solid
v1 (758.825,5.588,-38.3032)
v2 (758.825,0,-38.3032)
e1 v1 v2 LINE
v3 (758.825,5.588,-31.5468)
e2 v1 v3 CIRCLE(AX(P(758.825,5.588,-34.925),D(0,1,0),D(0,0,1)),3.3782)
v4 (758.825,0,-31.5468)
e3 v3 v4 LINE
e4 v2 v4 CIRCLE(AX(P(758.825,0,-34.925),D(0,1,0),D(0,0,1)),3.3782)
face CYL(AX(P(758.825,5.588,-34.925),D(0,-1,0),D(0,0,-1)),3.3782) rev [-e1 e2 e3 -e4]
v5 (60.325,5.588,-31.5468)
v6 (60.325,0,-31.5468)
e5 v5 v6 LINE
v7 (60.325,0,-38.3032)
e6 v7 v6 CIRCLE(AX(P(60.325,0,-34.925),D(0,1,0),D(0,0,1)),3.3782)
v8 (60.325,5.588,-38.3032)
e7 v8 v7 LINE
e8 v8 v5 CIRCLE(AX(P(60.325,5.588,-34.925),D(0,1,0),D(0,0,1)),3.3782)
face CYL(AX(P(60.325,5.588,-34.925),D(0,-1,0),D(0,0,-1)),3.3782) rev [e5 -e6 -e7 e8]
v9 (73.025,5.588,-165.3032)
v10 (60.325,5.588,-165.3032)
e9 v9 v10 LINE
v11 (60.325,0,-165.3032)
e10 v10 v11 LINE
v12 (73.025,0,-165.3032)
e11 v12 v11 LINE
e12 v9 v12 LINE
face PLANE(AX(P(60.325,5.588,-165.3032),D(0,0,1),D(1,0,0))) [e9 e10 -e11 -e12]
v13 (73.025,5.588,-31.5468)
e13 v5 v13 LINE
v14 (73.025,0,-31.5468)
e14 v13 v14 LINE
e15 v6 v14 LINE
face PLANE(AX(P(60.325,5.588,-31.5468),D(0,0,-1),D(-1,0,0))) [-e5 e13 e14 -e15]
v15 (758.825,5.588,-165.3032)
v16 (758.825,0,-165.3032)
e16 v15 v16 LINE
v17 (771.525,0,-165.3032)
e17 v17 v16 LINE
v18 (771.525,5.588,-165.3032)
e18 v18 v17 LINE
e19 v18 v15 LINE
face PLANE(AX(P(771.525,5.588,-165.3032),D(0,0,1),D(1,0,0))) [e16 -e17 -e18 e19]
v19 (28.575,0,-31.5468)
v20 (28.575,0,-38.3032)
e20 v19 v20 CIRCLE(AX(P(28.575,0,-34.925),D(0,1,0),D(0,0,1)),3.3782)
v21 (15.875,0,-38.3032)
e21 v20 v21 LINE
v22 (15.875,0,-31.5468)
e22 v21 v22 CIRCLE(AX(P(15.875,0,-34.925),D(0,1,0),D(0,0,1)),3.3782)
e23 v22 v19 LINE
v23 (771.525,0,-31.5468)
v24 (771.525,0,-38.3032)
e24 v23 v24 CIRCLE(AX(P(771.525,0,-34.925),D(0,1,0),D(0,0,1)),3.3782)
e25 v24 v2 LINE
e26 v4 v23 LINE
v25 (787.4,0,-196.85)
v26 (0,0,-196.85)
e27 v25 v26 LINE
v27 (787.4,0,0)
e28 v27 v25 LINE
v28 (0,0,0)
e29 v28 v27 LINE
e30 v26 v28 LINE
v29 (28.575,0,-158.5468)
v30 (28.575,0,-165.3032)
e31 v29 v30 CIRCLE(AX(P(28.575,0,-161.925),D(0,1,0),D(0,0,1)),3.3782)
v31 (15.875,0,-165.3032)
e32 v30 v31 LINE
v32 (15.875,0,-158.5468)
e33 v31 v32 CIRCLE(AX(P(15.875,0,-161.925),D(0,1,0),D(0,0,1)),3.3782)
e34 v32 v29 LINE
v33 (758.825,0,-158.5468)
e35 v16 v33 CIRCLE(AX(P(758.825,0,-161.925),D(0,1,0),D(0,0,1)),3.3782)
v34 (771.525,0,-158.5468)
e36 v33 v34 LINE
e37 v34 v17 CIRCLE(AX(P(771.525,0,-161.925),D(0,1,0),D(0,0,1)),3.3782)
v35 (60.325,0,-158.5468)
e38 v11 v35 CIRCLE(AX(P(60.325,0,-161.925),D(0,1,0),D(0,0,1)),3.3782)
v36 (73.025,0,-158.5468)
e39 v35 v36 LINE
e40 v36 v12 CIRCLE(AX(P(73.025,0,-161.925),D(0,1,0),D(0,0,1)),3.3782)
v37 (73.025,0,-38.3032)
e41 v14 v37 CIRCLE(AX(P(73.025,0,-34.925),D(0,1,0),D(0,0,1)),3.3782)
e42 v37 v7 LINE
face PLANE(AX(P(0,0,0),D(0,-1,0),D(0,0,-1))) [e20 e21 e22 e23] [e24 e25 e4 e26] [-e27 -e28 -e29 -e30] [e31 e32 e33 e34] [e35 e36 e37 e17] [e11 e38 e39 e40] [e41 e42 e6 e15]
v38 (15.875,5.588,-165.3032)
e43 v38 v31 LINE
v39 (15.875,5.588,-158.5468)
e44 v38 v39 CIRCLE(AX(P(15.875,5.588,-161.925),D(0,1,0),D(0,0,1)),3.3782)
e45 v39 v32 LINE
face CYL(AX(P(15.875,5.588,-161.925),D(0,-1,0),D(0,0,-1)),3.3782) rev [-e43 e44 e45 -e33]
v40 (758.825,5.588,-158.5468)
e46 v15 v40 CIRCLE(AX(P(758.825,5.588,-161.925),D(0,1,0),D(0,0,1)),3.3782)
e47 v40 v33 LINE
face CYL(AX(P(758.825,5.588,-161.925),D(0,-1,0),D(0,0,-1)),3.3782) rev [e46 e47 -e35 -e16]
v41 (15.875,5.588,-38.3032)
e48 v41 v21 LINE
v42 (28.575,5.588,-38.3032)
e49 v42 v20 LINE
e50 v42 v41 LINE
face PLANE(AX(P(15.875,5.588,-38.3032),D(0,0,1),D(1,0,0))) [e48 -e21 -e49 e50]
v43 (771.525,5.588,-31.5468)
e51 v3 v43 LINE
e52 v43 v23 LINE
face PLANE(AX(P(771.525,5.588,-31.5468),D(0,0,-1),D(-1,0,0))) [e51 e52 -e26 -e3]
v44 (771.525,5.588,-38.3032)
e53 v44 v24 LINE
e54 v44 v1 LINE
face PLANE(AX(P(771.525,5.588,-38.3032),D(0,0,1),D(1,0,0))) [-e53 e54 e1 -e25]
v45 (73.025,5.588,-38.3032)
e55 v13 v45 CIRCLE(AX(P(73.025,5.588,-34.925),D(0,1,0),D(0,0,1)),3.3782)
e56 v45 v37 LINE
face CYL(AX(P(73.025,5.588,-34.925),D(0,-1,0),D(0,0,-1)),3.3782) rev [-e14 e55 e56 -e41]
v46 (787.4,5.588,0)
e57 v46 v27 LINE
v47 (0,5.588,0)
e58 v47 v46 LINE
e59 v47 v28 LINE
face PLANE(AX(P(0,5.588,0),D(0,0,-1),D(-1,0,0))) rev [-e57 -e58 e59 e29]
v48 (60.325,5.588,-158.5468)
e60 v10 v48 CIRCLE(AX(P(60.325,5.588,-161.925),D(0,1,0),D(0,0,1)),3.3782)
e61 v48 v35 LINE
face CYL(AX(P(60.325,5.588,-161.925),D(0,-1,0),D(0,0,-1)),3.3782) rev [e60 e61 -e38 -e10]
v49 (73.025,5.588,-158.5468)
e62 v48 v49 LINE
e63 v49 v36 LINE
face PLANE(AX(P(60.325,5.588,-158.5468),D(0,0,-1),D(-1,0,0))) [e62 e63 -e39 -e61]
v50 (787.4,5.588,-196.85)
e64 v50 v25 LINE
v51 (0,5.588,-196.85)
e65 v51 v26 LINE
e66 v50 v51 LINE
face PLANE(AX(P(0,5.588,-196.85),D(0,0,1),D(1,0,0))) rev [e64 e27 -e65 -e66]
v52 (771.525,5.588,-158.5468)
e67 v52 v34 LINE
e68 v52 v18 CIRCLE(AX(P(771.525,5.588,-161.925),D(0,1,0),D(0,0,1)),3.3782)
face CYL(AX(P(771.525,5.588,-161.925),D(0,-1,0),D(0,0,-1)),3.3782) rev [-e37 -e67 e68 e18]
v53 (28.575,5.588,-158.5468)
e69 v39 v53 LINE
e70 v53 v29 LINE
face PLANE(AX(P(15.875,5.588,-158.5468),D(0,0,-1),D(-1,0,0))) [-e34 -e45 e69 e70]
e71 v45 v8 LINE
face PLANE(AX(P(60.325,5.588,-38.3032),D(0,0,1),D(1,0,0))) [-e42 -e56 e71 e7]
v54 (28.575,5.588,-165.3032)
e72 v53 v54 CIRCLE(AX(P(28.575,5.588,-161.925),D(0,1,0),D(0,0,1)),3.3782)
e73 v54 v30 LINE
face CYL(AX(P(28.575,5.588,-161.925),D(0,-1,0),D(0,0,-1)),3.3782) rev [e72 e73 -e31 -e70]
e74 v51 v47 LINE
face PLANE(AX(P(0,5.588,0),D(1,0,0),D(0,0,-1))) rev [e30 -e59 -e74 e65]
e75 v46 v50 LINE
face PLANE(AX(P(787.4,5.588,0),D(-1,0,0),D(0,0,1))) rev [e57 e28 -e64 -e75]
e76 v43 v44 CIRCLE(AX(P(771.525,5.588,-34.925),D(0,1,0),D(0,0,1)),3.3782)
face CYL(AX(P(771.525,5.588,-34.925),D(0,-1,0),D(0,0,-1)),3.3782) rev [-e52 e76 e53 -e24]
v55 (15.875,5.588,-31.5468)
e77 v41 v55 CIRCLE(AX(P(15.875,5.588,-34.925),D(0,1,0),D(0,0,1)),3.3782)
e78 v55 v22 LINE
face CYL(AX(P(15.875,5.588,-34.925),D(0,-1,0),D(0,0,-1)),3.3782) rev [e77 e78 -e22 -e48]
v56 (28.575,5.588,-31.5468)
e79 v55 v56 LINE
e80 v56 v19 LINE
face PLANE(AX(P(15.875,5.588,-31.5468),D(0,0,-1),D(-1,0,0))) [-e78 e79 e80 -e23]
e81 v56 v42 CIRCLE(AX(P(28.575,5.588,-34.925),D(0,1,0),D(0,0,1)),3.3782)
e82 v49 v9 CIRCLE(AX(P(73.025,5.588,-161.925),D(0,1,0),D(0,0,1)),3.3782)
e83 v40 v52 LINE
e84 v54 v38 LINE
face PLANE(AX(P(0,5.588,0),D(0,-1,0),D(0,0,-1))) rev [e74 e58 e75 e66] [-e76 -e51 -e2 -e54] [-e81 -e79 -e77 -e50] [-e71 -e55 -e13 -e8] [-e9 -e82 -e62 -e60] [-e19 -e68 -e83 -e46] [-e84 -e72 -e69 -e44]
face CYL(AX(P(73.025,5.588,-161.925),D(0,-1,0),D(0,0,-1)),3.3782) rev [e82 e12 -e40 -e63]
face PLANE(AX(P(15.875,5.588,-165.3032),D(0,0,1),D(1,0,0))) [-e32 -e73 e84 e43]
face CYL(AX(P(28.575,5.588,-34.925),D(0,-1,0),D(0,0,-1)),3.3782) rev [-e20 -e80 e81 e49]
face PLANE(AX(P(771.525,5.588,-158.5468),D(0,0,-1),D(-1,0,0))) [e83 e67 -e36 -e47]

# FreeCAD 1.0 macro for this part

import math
import FreeCAD as App
import Part
import Sketcher
Q = App.Units.Quantity

doc = App.newDocument("Part")
params = doc.addObject("Spreadsheet::Sheet", "Params")
for row, (alias, value) in enumerate([
    ("sketch1_width", "31 in"),
    ("sketch1_width2", "0.5 in"),
    ("sketch1_radius", "0.133 in"),
    ("sketch1_height", "7.75 in"),
    ("pad1_length", "0.22 in"),
], start=1):
    params.set(f"A{row}", alias)
    params.set(f"B{row}", "=" + value)
    params.setAlias(f"B{row}", alias)

body = doc.addObject("PartDesign::Body", "Body")

sketch1 = body.newObject("Sketcher::SketchObject", "Sketch")
sketch1.AttachmentSupport = (doc.getObject("XZ_Plane"), [""])
sketch1.MapMode = "FlatFace"
sketch1.addGeometry([
    Part.LineSegment(App.Vector(0, -196.8, 0), App.Vector(0, 0, 0)),
    Part.LineSegment(App.Vector(0, 0, 0), App.Vector(787.4, 0, 0)),
    Part.LineSegment(App.Vector(787.4, 0, 0), App.Vector(787.4, -196.8, 0)),
    Part.LineSegment(App.Vector(787.4, -196.8, 0), App.Vector(0, -196.8, 0)),
    Part.ArcOfCircle(Part.Circle(App.Vector(15.9, -34.9, 0), App.Vector(0, 0, 1), 3.4), math.radians(90), math.radians(270)),
    Part.LineSegment(App.Vector(15.9, -38.3, 0), App.Vector(28.6, -38.3, 0)),
    Part.ArcOfCircle(Part.Circle(App.Vector(28.6, -34.9, 0), App.Vector(0, 0, 1), 3.4), math.radians(-90), math.radians(90)),
    Part.LineSegment(App.Vector(28.6, -31.5, 0), App.Vector(15.9, -31.5, 0)),
    Part.ArcOfCircle(Part.Circle(App.Vector(60.3, -34.9, 0), App.Vector(0, 0, 1), 3.4), math.radians(90), math.radians(270)),
    Part.LineSegment(App.Vector(60.3, -38.3, 0), App.Vector(73, -38.3, 0)),
    Part.ArcOfCircle(Part.Circle(App.Vector(73, -34.9, 0), App.Vector(0, 0, 1), 3.4), math.radians(-90), math.radians(90)),
    Part.LineSegment(App.Vector(73, -31.5, 0), App.Vector(60.3, -31.5, 0)),
    Part.ArcOfCircle(Part.Circle(App.Vector(771.5, -34.9, 0), App.Vector(0, 0, 1), 3.4), math.radians(-90), math.radians(90)),
    Part.LineSegment(App.Vector(771.5, -31.5, 0), App.Vector(758.8, -31.5, 0)),
    Part.ArcOfCircle(Part.Circle(App.Vector(758.8, -34.9, 0), App.Vector(0, 0, 1), 3.4), math.radians(90), math.radians(270)),
    Part.LineSegment(App.Vector(758.8, -38.3, 0), App.Vector(771.5, -38.3, 0)),
    Part.ArcOfCircle(Part.Circle(App.Vector(15.9, -161.9, 0), App.Vector(0, 0, 1), 3.4), math.radians(90), math.radians(270)),
    Part.LineSegment(App.Vector(15.9, -165.3, 0), App.Vector(28.6, -165.3, 0)),
    Part.ArcOfCircle(Part.Circle(App.Vector(28.6, -161.9, 0), App.Vector(0, 0, 1), 3.4), math.radians(-90), math.radians(90)),
    Part.LineSegment(App.Vector(28.6, -158.5, 0), App.Vector(15.9, -158.5, 0)),
    Part.ArcOfCircle(Part.Circle(App.Vector(60.3, -161.9, 0), App.Vector(0, 0, 1), 3.4), math.radians(90), math.radians(270)),
    Part.LineSegment(App.Vector(60.3, -165.3, 0), App.Vector(73, -165.3, 0)),
    Part.ArcOfCircle(Part.Circle(App.Vector(73, -161.9, 0), App.Vector(0, 0, 1), 3.4), math.radians(-90), math.radians(90)),
    Part.LineSegment(App.Vector(73, -158.5, 0), App.Vector(60.3, -158.5, 0)),
    Part.ArcOfCircle(Part.Circle(App.Vector(771.5, -161.9, 0), App.Vector(0, 0, 1), 3.4), math.radians(-90), math.radians(90)),
    Part.LineSegment(App.Vector(771.5, -158.5, 0), App.Vector(758.8, -158.5, 0)),
    Part.ArcOfCircle(Part.Circle(App.Vector(758.8, -161.9, 0), App.Vector(0, 0, 1), 3.4), math.radians(90), math.radians(270)),
    Part.LineSegment(App.Vector(758.8, -165.3, 0), App.Vector(771.5, -165.3, 0)),
], False)
sketch1.addConstraint([
    Sketcher.Constraint("Coincident", 0, 2, 1, 1),
    Sketcher.Constraint("Coincident", 1, 2, 2, 1),
    Sketcher.Constraint("Coincident", 2, 2, 3, 1),
    Sketcher.Constraint("Coincident", 3, 2, 0, 1),
    Sketcher.Constraint("Tangent", 4, 2, 5, 1),
    Sketcher.Constraint("Tangent", 5, 2, 6, 1),
    Sketcher.Constraint("Tangent", 6, 2, 7, 1),
    Sketcher.Constraint("Tangent", 7, 2, 4, 1),
    Sketcher.Constraint("Tangent", 8, 2, 9, 1),
    Sketcher.Constraint("Tangent", 9, 2, 10, 1),
    Sketcher.Constraint("Tangent", 10, 2, 11, 1),
    Sketcher.Constraint("Tangent", 11, 2, 8, 1),
    Sketcher.Constraint("Tangent", 12, 2, 13, 1),
    Sketcher.Constraint("Tangent", 13, 2, 14, 1),
    Sketcher.Constraint("Tangent", 14, 2, 15, 1),
    Sketcher.Constraint("Tangent", 15, 2, 12, 1),
    Sketcher.Constraint("Tangent", 16, 2, 17, 1),
    Sketcher.Constraint("Tangent", 17, 2, 18, 1),
    Sketcher.Constraint("Tangent", 18, 2, 19, 1),
    Sketcher.Constraint("Tangent", 19, 2, 16, 1),
    Sketcher.Constraint("Tangent", 20, 2, 21, 1),
    Sketcher.Constraint("Tangent", 21, 2, 22, 1),
    Sketcher.Constraint("Tangent", 22, 2, 23, 1),
    Sketcher.Constraint("Tangent", 23, 2, 20, 1),
    Sketcher.Constraint("Tangent", 24, 2, 25, 1),
    Sketcher.Constraint("Tangent", 25, 2, 26, 1),
    Sketcher.Constraint("Tangent", 26, 2, 27, 1),
    Sketcher.Constraint("Tangent", 27, 2, 24, 1),
    Sketcher.Constraint("Vertical", 0),
    Sketcher.Constraint("Horizontal", 1),
    Sketcher.Constraint("Vertical", 2),
    Sketcher.Constraint("Horizontal", 3),
    Sketcher.Constraint("Horizontal", 5),
    Sketcher.Constraint("Horizontal", 7),
    Sketcher.Constraint("Horizontal", 9),
    Sketcher.Constraint("Horizontal", 11),
    Sketcher.Constraint("Horizontal", 13),
    Sketcher.Constraint("Horizontal", 15),
    Sketcher.Constraint("Horizontal", 17),
    Sketcher.Constraint("Horizontal", 19),
    Sketcher.Constraint("Horizontal", 21),
    Sketcher.Constraint("Horizontal", 23),
    Sketcher.Constraint("Horizontal", 25),
    Sketcher.Constraint("Horizontal", 27),
    Sketcher.Constraint("Coincident", 0, 2, -1, 1),
    Sketcher.Constraint("Equal", 6, 8),
    Sketcher.Constraint("Equal", 10, 12),
    Sketcher.Constraint("Equal", 14, 16),
    Sketcher.Constraint("Equal", 18, 20),
    Sketcher.Constraint("Equal", 22, 24),
    Sketcher.Constraint("Horizontal", 6, 3, 8, 3),
    Sketcher.Constraint("Horizontal", 10, 3, 12, 3),
    Sketcher.Constraint("Horizontal", 18, 3, 20, 3),
    Sketcher.Constraint("Horizontal", 22, 3, 24, 3),
    Sketcher.Constraint("Vertical", 4, 3, 16, 3),
    Sketcher.Constraint("Vertical", 6, 3, 18, 3),
    Sketcher.Constraint("Vertical", 8, 3, 20, 3),
    Sketcher.Constraint("Vertical", 10, 3, 22, 3),
    Sketcher.Constraint("Vertical", 12, 3, 24, 3),
    Sketcher.Constraint("Vertical", 14, 3, 26, 3),
    Sketcher.Constraint("Equal", 7, 9),
    Sketcher.Constraint("Equal", 11, 13),
    Sketcher.Constraint("DistanceX", 1, 1, 1, 2, Q("31 in")),
    Sketcher.Constraint("DistanceX", 5, 1, 5, 2, Q("0.5 in")),
    Sketcher.Constraint("Radius", 4, Q("0.133 in")),
    Sketcher.Constraint("DistanceX", 8, 3, 12, 3, Q("28 in")),
    Sketcher.Constraint("DistanceY", 16, 3, 4, 3, Q("5 in")),
    Sketcher.Constraint("DistanceY", 0, 1, 0, 2, Q("7.75 in")),
    Sketcher.Constraint("DistanceX", 6, 3, 8, 3, Q("1.25 in")),
    Sketcher.Constraint("DistanceX", -1, 1, 4, 3, Q("0.625 in")),
    Sketcher.Constraint("DistanceY", 4, 3, -1, 1, Q("1.375 in")),
])
sketch1.setExpression("Constraints[62]", "Params.sketch1_width")
sketch1.setExpression("Constraints[63]", "Params.sketch1_width2")
sketch1.setExpression("Constraints[64]", "Params.sketch1_radius")
sketch1.setExpression("Constraints[67]", "Params.sketch1_height")
pad1 = body.newObject("PartDesign::Pad", "Pad")
pad1.Profile = sketch1
pad1.setExpression("Length", "Params.pad1_length")
pad1.Reversed = True

doc.recompute()
